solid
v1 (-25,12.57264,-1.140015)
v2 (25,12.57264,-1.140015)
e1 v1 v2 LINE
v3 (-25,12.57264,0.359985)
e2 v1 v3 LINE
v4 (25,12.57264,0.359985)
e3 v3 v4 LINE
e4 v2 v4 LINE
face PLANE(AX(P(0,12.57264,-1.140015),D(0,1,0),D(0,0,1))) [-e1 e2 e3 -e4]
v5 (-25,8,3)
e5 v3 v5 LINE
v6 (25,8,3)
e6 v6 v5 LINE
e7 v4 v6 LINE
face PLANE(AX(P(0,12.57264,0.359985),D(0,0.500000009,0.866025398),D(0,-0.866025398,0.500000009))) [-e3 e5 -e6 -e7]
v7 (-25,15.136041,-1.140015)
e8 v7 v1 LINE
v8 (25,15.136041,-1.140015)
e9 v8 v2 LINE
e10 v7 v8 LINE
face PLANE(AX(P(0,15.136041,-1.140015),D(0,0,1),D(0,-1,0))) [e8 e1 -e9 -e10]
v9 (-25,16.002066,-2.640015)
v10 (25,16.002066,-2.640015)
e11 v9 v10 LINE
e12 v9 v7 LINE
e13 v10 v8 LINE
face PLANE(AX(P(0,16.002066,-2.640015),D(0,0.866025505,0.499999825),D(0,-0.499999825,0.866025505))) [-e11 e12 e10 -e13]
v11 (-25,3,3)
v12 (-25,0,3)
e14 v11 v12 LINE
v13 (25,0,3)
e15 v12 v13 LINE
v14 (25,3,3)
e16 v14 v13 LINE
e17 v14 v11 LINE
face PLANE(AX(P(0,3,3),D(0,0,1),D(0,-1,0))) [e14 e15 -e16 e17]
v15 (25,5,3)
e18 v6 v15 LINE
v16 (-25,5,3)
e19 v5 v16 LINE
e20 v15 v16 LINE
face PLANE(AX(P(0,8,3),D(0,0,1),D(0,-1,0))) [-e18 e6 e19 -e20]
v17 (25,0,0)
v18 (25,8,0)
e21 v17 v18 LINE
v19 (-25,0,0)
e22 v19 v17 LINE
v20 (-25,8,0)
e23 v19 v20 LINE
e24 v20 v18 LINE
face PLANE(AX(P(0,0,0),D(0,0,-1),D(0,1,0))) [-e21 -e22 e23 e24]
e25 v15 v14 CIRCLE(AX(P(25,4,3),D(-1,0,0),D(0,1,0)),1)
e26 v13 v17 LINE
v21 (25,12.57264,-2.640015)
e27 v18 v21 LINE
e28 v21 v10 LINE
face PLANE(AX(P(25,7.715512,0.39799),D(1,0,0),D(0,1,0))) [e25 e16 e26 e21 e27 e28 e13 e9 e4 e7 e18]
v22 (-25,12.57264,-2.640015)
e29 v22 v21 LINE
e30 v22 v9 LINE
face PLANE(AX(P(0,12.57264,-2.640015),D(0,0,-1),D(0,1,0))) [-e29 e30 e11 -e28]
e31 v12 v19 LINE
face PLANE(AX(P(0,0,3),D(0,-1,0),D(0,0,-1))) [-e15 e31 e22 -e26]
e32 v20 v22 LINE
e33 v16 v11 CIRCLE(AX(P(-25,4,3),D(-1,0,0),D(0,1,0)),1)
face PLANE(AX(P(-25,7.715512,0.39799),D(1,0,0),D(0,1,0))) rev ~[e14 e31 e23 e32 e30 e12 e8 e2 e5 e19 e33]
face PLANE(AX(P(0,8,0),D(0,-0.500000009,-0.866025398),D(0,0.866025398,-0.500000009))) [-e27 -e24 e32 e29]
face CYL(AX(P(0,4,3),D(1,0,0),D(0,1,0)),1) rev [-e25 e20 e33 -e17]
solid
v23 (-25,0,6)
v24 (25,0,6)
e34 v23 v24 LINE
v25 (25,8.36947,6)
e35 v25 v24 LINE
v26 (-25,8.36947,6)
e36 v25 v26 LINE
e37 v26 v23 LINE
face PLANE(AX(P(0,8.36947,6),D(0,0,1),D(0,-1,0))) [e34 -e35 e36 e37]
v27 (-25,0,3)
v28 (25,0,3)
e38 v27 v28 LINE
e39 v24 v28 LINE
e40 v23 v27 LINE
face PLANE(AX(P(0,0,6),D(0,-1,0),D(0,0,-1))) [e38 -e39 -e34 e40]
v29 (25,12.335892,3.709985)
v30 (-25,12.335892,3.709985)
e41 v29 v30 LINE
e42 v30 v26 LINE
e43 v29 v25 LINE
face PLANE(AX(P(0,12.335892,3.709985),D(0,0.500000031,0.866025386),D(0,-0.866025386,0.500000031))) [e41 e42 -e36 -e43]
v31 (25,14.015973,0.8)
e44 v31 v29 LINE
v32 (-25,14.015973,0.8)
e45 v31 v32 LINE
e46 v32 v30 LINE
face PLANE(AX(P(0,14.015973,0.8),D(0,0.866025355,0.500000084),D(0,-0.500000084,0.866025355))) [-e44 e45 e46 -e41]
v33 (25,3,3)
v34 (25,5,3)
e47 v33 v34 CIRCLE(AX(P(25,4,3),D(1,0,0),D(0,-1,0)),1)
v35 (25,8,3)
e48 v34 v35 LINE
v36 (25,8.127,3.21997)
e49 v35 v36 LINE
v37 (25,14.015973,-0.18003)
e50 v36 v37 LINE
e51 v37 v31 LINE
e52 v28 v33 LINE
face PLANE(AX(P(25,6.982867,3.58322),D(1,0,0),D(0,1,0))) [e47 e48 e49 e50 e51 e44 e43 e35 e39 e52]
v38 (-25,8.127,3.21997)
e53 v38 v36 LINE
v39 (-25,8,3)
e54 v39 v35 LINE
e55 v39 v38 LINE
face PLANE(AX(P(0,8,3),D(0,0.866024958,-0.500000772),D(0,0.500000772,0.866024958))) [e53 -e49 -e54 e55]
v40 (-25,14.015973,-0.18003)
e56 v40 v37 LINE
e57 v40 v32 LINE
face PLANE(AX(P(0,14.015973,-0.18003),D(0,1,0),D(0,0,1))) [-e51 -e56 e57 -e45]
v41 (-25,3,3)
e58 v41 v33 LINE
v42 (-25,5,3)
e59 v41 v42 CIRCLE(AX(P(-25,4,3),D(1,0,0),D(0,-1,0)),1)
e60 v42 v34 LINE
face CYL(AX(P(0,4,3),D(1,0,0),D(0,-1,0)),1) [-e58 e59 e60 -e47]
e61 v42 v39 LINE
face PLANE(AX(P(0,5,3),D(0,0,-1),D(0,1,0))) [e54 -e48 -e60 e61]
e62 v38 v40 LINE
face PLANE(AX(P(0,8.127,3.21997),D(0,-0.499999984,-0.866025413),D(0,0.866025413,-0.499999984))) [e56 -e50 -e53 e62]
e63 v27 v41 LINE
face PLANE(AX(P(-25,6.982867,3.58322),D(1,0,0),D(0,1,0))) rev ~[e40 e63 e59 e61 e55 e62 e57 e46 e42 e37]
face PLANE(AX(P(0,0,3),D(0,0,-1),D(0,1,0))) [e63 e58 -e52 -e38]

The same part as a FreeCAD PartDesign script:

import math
import FreeCAD as App
import Part
import Sketcher

V = App.Vector
Q = App.Units.Quantity

doc = App.newDocument("Part")
body = doc.addObject("PartDesign::Body", "Body")

# Sketch on YZ plane
sketch1 = body.newObject("Sketcher::SketchObject", "Sketch")
sketch1.AttachmentSupport = (doc.getObject("YZ_Plane"), [""])
sketch1.MapMode = "FlatFace"
sketch1.addGeometry([
    Part.LineSegment(V(8.36947, 6, 0), V(0, 6, 0)),  # 0
    Part.LineSegment(V(0, 6, 0), V(0, 3, 0)),  # 1
    Part.LineSegment(V(0, 3, 0), V(3, 3, 0)),  # 2
    Part.ArcOfCircle(Part.Circle(V(4, 3, 0), V(0, 0, 1), 1), math.radians(180), math.radians(360)),  # 3
    Part.LineSegment(V(5, 3, 0), V(8, 3, 0)),  # 4
    Part.LineSegment(V(8, 3, 0), V(8.127, 3.21997, 0)),  # 5
    Part.LineSegment(V(8.127, 3.21997, 0), V(14.015973, -0.18003, 0)),  # 6
    Part.LineSegment(V(14.015973, -0.18003, 0), V(14.015973, 0.8, 0)),  # 7
    Part.LineSegment(V(14.015973, 0.8, 0), V(12.335892, 3.709985, 0)),  # 8
    Part.LineSegment(V(12.335892, 3.709985, 0), V(8.36947, 6, 0)),  # 9
], False)
sketch1.addConstraint([
    Sketcher.Constraint("Coincident", 0, 2, 1, 1),
    Sketcher.Constraint("Coincident", 1, 2, 2, 1),
    Sketcher.Constraint("Coincident", 2, 2, 3, 1),
    Sketcher.Constraint("Coincident", 3, 2, 4, 1),
    Sketcher.Constraint("Coincident", 4, 2, 5, 1),
    Sketcher.Constraint("Coincident", 5, 2, 6, 1),
    Sketcher.Constraint("Coincident", 6, 2, 7, 1),
    Sketcher.Constraint("Coincident", 7, 2, 8, 1),
    Sketcher.Constraint("Coincident", 8, 2, 9, 1),
    Sketcher.Constraint("Coincident", 9, 2, 0, 1),
    Sketcher.Constraint("Horizontal", 0),
    Sketcher.Constraint("Vertical", 1),
    Sketcher.Constraint("Horizontal", 2),
    Sketcher.Constraint("Horizontal", 4),
    Sketcher.Constraint("Vertical", 7),
    Sketcher.Constraint("PointOnObject", 0, 2, -2),
    Sketcher.Constraint("Perpendicular", 5, 6),
    Sketcher.Constraint("Parallel", 6, 9),
    Sketcher.Constraint("Horizontal", 3, 3, 1, 2),
    Sketcher.Constraint("Horizontal", 2, 2, 3, 2),
    Sketcher.Constraint("Equal", 2, 4),
    Sketcher.Constraint("Equal", 4, 1),
    Sketcher.Constraint("Radius", 3, Q("1 mm")),
    Sketcher.Constraint("DistanceX", 2, 1, 2, 2, Q("3 mm")),
    Sketcher.Constraint("Angle", 6, Q("-29.999999 deg")),
    Sketcher.Constraint("Angle", 8, Q("120.000006 deg")),
    Sketcher.Constraint("DistanceY", -1, 1, 3, 3, Q("3 mm")),
    Sketcher.Constraint("Distance", 6, Q("6.8 mm")),
    Sketcher.Constraint("DistanceY", -1, 1, 7, 2, Q("0.8 mm")),
    Sketcher.Constraint("Distance", 5, Q("0.254 mm")),
    Sketcher.Constraint("DistanceX", 0, 2, 0, 1, Q("8.36947 mm")),
])
pad1 = body.newObject("PartDesign::Pad", "Pad")
pad1.Profile = sketch1
pad1.Length = 50
pad1.Midplane = True
body2 = doc.addObject("PartDesign::Body", "Body001")

# Sketch on YZ plane
sketch2 = body2.newObject("Sketcher::SketchObject", "Sketch001")
sketch2.AttachmentSupport = (doc.getObject("YZ_Plane001"), [""])
sketch2.MapMode = "FlatFace"
sketch2.addGeometry([
    Part.LineSegment(V(3, 3, 0), V(0, 3, 0)),  # 0
    Part.LineSegment(V(0, 3, 0), V(0, 0, 0)),  # 1
    Part.LineSegment(V(0, 0, 0), V(8, 0, 0)),  # 2
    Part.LineSegment(V(8, 0, 0), V(12.57264, -2.640015, 0)),  # 3
    Part.LineSegment(V(12.57264, -2.640015, 0), V(16.002066, -2.640015, 0)),  # 4
    Part.LineSegment(V(16.002066, -2.640015, 0), V(15.136041, -1.140015, 0)),  # 5
    Part.LineSegment(V(15.136041, -1.140015, 0), V(12.57264, -1.140015, 0)),  # 6
    Part.LineSegment(V(12.57264, -1.140015, 0), V(12.57264, 0.359985, 0)),  # 7
    Part.LineSegment(V(12.57264, 0.359985, 0), V(8, 3, 0)),  # 8
    Part.LineSegment(V(8, 3, 0), V(5, 3, 0)),  # 9
    Part.ArcOfCircle(Part.Circle(V(4, 3, 0), V(0, 0, 1), 1), math.radians(180), math.radians(360)),  # 10
], False)
sketch2.addConstraint([
    Sketcher.Constraint("Coincident", 0, 2, 1, 1),
    Sketcher.Constraint("Coincident", 1, 2, 2, 1),
    Sketcher.Constraint("Coincident", 2, 2, 3, 1),
    Sketcher.Constraint("Coincident", 3, 2, 4, 1),
    Sketcher.Constraint("Coincident", 4, 2, 5, 1),
    Sketcher.Constraint("Coincident", 5, 2, 6, 1),
    Sketcher.Constraint("Coincident", 6, 2, 7, 1),
    Sketcher.Constraint("Coincident", 7, 2, 8, 1),
    Sketcher.Constraint("Coincident", 8, 2, 9, 1),
    Sketcher.Constraint("Coincident", 9, 2, 10, 2),
    Sketcher.Constraint("Coincident", 10, 1, 0, 1),
    Sketcher.Constraint("Horizontal", 0),
    Sketcher.Constraint("Vertical", 1),
    Sketcher.Constraint("Horizontal", 2),
    Sketcher.Constraint("Horizontal", 4),
    Sketcher.Constraint("Horizontal", 6),
    Sketcher.Constraint("Vertical", 7),
    Sketcher.Constraint("Horizontal", 9),
    Sketcher.Constraint("Coincident", 1, 2, -1, 1),
    Sketcher.Constraint("Parallel", 3, 8),
    Sketcher.Constraint("Horizontal", 10, 3, 0, 2),
    Sketcher.Constraint("Horizontal", 0, 2, 8, 2),
    Sketcher.Constraint("Vertical", 3, 2, 6, 2),
    Sketcher.Constraint("Vertical", 2, 2, 8, 2),
    Sketcher.Constraint("Equal", 0, 9),
    Sketcher.Constraint("Equal", 9, 1),
    Sketcher.Constraint("Radius", 10, Q("1 mm")),
    Sketcher.Constraint("DistanceX", 0, 2, 0, 1, Q("3 mm")),
    Sketcher.Constraint("Angle", 3, Q("-30.000001 deg")),
    Sketcher.Constraint("Angle", 5, Q("119.999988 deg")),
    Sketcher.Constraint("DistanceY", 7, 1, 7, 2, Q("1.5 mm")),
    Sketcher.Constraint("DistanceX", 6, 2, 6, 1, Q("2.563401 mm")),
    Sketcher.Constraint("Distance", 3, Q("5.28003 mm")),
])
pad2 = body2.newObject("PartDesign::Pad", "Pad001")
pad2.Profile = sketch2
pad2.Length = 50
pad2.Midplane = True

doc.recompute()
